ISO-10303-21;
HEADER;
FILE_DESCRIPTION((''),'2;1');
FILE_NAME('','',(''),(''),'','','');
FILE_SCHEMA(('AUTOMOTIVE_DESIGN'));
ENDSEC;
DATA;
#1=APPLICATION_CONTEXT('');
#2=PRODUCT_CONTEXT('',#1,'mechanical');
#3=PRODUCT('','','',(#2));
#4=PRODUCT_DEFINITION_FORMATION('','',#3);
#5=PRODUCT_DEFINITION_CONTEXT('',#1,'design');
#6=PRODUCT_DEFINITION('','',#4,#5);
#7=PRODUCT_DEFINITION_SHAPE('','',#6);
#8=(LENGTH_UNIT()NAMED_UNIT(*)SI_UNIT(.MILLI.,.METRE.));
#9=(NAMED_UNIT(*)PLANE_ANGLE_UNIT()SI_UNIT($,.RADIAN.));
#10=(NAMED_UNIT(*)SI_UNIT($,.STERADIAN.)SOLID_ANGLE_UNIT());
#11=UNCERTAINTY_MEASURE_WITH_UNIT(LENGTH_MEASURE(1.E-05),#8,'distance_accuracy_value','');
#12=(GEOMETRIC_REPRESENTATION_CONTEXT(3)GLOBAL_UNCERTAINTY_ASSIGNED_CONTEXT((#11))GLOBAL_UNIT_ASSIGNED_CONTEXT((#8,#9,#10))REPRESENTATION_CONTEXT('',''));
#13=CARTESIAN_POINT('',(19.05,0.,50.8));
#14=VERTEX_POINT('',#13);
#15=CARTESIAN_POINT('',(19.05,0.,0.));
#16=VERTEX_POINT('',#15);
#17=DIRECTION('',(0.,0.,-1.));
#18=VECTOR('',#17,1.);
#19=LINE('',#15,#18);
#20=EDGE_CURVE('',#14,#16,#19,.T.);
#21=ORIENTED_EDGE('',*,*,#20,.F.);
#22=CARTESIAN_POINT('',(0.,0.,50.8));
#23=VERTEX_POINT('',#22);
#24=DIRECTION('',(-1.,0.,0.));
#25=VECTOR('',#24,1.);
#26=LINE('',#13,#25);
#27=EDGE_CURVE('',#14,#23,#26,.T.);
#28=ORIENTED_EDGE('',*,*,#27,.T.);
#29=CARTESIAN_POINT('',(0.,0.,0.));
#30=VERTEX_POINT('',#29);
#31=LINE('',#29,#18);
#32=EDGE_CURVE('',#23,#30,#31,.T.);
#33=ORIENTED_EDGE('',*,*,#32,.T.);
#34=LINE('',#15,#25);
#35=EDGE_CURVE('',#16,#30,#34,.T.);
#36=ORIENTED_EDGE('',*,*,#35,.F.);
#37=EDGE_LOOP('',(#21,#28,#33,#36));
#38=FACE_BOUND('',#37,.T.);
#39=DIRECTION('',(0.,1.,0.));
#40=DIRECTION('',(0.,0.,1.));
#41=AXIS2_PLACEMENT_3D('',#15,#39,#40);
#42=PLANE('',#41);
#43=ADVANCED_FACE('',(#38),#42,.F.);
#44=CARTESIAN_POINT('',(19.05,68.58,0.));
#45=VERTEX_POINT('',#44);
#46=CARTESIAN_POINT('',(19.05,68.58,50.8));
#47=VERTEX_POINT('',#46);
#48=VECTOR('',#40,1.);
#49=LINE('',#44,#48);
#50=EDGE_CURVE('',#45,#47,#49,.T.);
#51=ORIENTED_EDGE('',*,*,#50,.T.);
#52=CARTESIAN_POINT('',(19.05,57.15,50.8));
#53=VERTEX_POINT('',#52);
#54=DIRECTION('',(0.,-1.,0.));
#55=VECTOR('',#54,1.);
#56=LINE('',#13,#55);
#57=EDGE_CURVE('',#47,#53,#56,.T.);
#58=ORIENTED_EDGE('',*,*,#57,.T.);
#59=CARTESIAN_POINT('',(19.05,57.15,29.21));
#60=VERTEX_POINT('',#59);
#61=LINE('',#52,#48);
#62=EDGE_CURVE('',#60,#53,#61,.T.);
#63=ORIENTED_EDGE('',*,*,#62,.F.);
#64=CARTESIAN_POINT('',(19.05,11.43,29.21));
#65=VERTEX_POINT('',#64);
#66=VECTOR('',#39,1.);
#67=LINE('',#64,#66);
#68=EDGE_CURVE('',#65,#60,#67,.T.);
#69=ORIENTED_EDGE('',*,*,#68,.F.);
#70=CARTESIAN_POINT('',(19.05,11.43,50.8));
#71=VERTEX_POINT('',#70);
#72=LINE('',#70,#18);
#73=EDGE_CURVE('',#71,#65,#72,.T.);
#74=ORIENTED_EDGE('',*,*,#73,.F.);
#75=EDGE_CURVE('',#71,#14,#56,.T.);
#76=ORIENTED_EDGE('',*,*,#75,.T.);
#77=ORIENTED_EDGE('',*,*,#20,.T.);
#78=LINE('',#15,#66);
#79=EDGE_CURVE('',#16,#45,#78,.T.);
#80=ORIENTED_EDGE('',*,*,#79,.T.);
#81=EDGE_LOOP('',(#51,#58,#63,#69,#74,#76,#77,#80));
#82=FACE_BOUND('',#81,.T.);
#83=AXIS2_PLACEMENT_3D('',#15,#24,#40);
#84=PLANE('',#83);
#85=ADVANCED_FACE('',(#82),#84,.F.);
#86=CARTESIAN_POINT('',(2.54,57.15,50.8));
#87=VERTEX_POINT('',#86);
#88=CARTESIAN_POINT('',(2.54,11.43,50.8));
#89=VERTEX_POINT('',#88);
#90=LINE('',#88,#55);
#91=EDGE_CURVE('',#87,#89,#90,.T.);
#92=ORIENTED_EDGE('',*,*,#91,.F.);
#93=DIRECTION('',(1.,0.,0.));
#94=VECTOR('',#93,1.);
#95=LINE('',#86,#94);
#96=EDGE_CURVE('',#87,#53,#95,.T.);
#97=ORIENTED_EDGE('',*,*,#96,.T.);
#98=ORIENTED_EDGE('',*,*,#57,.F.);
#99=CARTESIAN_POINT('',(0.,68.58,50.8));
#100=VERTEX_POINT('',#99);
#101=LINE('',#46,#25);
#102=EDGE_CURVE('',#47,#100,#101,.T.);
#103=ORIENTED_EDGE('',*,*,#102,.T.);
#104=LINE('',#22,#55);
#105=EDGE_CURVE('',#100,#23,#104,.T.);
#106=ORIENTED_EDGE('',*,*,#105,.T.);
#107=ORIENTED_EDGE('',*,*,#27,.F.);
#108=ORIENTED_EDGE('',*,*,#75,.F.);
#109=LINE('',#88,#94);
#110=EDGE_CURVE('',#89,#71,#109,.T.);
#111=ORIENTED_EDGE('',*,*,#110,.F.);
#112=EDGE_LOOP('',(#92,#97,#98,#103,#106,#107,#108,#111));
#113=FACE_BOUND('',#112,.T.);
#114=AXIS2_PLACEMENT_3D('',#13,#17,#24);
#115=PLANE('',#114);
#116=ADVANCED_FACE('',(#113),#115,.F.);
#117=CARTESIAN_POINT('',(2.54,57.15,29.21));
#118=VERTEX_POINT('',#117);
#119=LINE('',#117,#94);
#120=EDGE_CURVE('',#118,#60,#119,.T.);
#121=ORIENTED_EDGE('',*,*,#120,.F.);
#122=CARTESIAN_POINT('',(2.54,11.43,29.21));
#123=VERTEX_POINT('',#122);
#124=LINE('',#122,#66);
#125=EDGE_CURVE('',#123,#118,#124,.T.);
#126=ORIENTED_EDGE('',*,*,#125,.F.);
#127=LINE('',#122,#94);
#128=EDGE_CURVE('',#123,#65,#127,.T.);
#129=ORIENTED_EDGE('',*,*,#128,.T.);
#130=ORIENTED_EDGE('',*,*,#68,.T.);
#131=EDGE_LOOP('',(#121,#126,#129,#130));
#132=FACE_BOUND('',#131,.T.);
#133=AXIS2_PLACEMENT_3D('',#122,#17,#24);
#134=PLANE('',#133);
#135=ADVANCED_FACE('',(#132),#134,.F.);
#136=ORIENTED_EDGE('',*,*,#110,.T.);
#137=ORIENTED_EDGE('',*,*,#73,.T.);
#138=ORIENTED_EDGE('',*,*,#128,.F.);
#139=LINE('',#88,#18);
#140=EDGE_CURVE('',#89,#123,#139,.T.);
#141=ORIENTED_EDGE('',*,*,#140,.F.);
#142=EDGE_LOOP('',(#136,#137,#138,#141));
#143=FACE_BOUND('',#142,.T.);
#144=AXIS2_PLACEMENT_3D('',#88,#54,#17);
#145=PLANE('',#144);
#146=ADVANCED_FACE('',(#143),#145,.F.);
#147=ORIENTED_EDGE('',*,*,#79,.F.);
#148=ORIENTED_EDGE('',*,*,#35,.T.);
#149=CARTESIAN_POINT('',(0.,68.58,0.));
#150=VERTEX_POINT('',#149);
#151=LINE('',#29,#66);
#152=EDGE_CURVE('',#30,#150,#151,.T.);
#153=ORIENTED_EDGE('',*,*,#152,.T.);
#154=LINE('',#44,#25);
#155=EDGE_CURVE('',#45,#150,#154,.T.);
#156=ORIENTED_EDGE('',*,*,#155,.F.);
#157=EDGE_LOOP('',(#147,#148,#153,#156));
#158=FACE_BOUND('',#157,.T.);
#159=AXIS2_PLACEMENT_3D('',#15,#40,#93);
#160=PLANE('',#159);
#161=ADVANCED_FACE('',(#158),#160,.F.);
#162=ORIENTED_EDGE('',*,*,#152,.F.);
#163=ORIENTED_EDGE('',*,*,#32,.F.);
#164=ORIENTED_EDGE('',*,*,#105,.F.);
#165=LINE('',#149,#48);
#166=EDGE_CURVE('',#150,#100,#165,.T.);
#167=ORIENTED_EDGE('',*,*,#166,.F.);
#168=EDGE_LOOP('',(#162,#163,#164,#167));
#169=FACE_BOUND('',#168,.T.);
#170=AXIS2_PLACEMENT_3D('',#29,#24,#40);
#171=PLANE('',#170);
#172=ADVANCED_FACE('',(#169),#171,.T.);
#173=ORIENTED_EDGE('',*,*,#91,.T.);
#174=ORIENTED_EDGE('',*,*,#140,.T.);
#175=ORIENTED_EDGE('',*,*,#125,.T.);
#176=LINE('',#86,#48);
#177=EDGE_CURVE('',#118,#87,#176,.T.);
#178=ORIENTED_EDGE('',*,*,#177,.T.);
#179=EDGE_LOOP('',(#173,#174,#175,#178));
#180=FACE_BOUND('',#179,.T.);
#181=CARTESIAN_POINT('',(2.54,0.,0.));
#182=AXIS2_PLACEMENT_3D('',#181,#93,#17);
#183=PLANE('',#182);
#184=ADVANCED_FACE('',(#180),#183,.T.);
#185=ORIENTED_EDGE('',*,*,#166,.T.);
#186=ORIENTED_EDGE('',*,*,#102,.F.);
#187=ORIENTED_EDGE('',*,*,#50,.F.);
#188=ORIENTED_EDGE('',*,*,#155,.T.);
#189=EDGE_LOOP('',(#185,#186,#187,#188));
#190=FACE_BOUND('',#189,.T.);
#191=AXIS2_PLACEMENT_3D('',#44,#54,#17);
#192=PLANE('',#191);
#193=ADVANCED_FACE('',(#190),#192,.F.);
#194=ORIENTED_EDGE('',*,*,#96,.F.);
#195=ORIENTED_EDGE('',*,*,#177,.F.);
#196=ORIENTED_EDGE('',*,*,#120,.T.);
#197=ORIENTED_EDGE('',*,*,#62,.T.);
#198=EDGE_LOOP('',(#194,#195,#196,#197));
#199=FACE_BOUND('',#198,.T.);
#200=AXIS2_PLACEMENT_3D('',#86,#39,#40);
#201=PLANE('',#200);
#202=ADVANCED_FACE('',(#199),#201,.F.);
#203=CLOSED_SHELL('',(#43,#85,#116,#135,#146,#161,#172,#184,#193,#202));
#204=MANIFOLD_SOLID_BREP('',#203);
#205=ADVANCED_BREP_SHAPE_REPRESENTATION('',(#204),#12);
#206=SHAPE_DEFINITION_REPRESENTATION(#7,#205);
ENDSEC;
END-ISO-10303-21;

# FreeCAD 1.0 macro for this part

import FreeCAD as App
import Part
import Sketcher
Q = App.Units.Quantity

doc = App.newDocument("Part")
body = doc.addObject("PartDesign::Body", "Body")

sketch1 = body.newObject("Sketcher::SketchObject", "Sketch")
sketch1.AttachmentSupport = (doc.getObject("YZ_Plane"), [""])
sketch1.MapMode = "FlatFace"
sketch1.addGeometry(Part.LineSegment(App.Vector(0, 51, 0), App.Vector(0, 0, 0)), False)
sketch1.addGeometry(Part.LineSegment(App.Vector(0, 0, 0), App.Vector(69, 0, 0)), False)
sketch1.addGeometry(Part.LineSegment(App.Vector(69, 0, 0), App.Vector(69, 51, 0)), False)
sketch1.addGeometry(Part.LineSegment(App.Vector(69, 51, 0), App.Vector(0, 51, 0)), False)
sketch1.addConstraint(Sketcher.Constraint("Coincident", 0, 2, 1, 1))
sketch1.addConstraint(Sketcher.Constraint("Coincident", 1, 2, 2, 1))
sketch1.addConstraint(Sketcher.Constraint("Coincident", 2, 2, 3, 1))
sketch1.addConstraint(Sketcher.Constraint("Coincident", 3, 2, 0, 1))
sketch1.addConstraint(Sketcher.Constraint("Vertical", 0))
sketch1.addConstraint(Sketcher.Constraint("Horizontal", 1))
sketch1.addConstraint(Sketcher.Constraint("Vertical", 2))
sketch1.addConstraint(Sketcher.Constraint("Horizontal", 3))
sketch1.addConstraint(Sketcher.Constraint("Coincident", 0, 2, -1, 1))
sketch1.addConstraint(Sketcher.Constraint("DistanceY", 0, 2, 0, 1, Q("2 in")))
sketch1.addConstraint(Sketcher.Constraint("DistanceX", 1, 1, 1, 2, Q("2.7 in")))
pad1 = body.newObject("PartDesign::Pad", "Pad")
pad1.Profile = sketch1
pad1.Length = Q("0.75 in")

sketch2 = body.newObject("Sketcher::SketchObject", "Sketch001")
sketch2.AttachmentSupport = (doc.getObject("YZ_Plane"), [""])
sketch2.MapMode = "FlatFace"
sketch2.AttachmentOffset = App.Placement(App.Vector(0, 0, 0.75 * 25.4), App.Rotation())
sketch2.addGeometry(Part.LineSegment(App.Vector(11, 51, 0), App.Vector(11, 29, 0)), False)
sketch2.addGeometry(Part.LineSegment(App.Vector(11, 29, 0), App.Vector(57, 29, 0)), False)
sketch2.addGeometry(Part.LineSegment(App.Vector(57, 29, 0), App.Vector(57, 51, 0)), False)
sketch2.addGeometry(Part.LineSegment(App.Vector(57, 51, 0), App.Vector(11, 51, 0)), False)
sketch2.addConstraint(Sketcher.Constraint("Coincident", 0, 2, 1, 1))
sketch2.addConstraint(Sketcher.Constraint("Coincident", 1, 2, 2, 1))
sketch2.addConstraint(Sketcher.Constraint("Coincident", 2, 2, 3, 1))
sketch2.addConstraint(Sketcher.Constraint("Coincident", 3, 2, 0, 1))
sketch2.addConstraint(Sketcher.Constraint("Vertical", 0))
sketch2.addConstraint(Sketcher.Constraint("Horizontal", 1))
sketch2.addConstraint(Sketcher.Constraint("Vertical", 2))
sketch2.addConstraint(Sketcher.Constraint("Horizontal", 3))
sketch2.addConstraint(Sketcher.Constraint("DistanceX", 1, 1, 1, 2, Q("1.8 in")))
sketch2.addConstraint(Sketcher.Constraint("DistanceY", -1, 1, 2, 2, Q("2 in")))
sketch2.addConstraint(Sketcher.Constraint("DistanceY", 0, 2, 0, 1, Q("0.85 in")))
sketch2.addConstraint(Sketcher.Constraint("DistanceX", -1, 1, 0, 2, Q("0.45 in")))
pocket1 = body.newObject("PartDesign::Pocket", "Pocket")
pocket1.Profile = sketch2
pocket1.Length = Q("0.65 in")

doc.recompute()
